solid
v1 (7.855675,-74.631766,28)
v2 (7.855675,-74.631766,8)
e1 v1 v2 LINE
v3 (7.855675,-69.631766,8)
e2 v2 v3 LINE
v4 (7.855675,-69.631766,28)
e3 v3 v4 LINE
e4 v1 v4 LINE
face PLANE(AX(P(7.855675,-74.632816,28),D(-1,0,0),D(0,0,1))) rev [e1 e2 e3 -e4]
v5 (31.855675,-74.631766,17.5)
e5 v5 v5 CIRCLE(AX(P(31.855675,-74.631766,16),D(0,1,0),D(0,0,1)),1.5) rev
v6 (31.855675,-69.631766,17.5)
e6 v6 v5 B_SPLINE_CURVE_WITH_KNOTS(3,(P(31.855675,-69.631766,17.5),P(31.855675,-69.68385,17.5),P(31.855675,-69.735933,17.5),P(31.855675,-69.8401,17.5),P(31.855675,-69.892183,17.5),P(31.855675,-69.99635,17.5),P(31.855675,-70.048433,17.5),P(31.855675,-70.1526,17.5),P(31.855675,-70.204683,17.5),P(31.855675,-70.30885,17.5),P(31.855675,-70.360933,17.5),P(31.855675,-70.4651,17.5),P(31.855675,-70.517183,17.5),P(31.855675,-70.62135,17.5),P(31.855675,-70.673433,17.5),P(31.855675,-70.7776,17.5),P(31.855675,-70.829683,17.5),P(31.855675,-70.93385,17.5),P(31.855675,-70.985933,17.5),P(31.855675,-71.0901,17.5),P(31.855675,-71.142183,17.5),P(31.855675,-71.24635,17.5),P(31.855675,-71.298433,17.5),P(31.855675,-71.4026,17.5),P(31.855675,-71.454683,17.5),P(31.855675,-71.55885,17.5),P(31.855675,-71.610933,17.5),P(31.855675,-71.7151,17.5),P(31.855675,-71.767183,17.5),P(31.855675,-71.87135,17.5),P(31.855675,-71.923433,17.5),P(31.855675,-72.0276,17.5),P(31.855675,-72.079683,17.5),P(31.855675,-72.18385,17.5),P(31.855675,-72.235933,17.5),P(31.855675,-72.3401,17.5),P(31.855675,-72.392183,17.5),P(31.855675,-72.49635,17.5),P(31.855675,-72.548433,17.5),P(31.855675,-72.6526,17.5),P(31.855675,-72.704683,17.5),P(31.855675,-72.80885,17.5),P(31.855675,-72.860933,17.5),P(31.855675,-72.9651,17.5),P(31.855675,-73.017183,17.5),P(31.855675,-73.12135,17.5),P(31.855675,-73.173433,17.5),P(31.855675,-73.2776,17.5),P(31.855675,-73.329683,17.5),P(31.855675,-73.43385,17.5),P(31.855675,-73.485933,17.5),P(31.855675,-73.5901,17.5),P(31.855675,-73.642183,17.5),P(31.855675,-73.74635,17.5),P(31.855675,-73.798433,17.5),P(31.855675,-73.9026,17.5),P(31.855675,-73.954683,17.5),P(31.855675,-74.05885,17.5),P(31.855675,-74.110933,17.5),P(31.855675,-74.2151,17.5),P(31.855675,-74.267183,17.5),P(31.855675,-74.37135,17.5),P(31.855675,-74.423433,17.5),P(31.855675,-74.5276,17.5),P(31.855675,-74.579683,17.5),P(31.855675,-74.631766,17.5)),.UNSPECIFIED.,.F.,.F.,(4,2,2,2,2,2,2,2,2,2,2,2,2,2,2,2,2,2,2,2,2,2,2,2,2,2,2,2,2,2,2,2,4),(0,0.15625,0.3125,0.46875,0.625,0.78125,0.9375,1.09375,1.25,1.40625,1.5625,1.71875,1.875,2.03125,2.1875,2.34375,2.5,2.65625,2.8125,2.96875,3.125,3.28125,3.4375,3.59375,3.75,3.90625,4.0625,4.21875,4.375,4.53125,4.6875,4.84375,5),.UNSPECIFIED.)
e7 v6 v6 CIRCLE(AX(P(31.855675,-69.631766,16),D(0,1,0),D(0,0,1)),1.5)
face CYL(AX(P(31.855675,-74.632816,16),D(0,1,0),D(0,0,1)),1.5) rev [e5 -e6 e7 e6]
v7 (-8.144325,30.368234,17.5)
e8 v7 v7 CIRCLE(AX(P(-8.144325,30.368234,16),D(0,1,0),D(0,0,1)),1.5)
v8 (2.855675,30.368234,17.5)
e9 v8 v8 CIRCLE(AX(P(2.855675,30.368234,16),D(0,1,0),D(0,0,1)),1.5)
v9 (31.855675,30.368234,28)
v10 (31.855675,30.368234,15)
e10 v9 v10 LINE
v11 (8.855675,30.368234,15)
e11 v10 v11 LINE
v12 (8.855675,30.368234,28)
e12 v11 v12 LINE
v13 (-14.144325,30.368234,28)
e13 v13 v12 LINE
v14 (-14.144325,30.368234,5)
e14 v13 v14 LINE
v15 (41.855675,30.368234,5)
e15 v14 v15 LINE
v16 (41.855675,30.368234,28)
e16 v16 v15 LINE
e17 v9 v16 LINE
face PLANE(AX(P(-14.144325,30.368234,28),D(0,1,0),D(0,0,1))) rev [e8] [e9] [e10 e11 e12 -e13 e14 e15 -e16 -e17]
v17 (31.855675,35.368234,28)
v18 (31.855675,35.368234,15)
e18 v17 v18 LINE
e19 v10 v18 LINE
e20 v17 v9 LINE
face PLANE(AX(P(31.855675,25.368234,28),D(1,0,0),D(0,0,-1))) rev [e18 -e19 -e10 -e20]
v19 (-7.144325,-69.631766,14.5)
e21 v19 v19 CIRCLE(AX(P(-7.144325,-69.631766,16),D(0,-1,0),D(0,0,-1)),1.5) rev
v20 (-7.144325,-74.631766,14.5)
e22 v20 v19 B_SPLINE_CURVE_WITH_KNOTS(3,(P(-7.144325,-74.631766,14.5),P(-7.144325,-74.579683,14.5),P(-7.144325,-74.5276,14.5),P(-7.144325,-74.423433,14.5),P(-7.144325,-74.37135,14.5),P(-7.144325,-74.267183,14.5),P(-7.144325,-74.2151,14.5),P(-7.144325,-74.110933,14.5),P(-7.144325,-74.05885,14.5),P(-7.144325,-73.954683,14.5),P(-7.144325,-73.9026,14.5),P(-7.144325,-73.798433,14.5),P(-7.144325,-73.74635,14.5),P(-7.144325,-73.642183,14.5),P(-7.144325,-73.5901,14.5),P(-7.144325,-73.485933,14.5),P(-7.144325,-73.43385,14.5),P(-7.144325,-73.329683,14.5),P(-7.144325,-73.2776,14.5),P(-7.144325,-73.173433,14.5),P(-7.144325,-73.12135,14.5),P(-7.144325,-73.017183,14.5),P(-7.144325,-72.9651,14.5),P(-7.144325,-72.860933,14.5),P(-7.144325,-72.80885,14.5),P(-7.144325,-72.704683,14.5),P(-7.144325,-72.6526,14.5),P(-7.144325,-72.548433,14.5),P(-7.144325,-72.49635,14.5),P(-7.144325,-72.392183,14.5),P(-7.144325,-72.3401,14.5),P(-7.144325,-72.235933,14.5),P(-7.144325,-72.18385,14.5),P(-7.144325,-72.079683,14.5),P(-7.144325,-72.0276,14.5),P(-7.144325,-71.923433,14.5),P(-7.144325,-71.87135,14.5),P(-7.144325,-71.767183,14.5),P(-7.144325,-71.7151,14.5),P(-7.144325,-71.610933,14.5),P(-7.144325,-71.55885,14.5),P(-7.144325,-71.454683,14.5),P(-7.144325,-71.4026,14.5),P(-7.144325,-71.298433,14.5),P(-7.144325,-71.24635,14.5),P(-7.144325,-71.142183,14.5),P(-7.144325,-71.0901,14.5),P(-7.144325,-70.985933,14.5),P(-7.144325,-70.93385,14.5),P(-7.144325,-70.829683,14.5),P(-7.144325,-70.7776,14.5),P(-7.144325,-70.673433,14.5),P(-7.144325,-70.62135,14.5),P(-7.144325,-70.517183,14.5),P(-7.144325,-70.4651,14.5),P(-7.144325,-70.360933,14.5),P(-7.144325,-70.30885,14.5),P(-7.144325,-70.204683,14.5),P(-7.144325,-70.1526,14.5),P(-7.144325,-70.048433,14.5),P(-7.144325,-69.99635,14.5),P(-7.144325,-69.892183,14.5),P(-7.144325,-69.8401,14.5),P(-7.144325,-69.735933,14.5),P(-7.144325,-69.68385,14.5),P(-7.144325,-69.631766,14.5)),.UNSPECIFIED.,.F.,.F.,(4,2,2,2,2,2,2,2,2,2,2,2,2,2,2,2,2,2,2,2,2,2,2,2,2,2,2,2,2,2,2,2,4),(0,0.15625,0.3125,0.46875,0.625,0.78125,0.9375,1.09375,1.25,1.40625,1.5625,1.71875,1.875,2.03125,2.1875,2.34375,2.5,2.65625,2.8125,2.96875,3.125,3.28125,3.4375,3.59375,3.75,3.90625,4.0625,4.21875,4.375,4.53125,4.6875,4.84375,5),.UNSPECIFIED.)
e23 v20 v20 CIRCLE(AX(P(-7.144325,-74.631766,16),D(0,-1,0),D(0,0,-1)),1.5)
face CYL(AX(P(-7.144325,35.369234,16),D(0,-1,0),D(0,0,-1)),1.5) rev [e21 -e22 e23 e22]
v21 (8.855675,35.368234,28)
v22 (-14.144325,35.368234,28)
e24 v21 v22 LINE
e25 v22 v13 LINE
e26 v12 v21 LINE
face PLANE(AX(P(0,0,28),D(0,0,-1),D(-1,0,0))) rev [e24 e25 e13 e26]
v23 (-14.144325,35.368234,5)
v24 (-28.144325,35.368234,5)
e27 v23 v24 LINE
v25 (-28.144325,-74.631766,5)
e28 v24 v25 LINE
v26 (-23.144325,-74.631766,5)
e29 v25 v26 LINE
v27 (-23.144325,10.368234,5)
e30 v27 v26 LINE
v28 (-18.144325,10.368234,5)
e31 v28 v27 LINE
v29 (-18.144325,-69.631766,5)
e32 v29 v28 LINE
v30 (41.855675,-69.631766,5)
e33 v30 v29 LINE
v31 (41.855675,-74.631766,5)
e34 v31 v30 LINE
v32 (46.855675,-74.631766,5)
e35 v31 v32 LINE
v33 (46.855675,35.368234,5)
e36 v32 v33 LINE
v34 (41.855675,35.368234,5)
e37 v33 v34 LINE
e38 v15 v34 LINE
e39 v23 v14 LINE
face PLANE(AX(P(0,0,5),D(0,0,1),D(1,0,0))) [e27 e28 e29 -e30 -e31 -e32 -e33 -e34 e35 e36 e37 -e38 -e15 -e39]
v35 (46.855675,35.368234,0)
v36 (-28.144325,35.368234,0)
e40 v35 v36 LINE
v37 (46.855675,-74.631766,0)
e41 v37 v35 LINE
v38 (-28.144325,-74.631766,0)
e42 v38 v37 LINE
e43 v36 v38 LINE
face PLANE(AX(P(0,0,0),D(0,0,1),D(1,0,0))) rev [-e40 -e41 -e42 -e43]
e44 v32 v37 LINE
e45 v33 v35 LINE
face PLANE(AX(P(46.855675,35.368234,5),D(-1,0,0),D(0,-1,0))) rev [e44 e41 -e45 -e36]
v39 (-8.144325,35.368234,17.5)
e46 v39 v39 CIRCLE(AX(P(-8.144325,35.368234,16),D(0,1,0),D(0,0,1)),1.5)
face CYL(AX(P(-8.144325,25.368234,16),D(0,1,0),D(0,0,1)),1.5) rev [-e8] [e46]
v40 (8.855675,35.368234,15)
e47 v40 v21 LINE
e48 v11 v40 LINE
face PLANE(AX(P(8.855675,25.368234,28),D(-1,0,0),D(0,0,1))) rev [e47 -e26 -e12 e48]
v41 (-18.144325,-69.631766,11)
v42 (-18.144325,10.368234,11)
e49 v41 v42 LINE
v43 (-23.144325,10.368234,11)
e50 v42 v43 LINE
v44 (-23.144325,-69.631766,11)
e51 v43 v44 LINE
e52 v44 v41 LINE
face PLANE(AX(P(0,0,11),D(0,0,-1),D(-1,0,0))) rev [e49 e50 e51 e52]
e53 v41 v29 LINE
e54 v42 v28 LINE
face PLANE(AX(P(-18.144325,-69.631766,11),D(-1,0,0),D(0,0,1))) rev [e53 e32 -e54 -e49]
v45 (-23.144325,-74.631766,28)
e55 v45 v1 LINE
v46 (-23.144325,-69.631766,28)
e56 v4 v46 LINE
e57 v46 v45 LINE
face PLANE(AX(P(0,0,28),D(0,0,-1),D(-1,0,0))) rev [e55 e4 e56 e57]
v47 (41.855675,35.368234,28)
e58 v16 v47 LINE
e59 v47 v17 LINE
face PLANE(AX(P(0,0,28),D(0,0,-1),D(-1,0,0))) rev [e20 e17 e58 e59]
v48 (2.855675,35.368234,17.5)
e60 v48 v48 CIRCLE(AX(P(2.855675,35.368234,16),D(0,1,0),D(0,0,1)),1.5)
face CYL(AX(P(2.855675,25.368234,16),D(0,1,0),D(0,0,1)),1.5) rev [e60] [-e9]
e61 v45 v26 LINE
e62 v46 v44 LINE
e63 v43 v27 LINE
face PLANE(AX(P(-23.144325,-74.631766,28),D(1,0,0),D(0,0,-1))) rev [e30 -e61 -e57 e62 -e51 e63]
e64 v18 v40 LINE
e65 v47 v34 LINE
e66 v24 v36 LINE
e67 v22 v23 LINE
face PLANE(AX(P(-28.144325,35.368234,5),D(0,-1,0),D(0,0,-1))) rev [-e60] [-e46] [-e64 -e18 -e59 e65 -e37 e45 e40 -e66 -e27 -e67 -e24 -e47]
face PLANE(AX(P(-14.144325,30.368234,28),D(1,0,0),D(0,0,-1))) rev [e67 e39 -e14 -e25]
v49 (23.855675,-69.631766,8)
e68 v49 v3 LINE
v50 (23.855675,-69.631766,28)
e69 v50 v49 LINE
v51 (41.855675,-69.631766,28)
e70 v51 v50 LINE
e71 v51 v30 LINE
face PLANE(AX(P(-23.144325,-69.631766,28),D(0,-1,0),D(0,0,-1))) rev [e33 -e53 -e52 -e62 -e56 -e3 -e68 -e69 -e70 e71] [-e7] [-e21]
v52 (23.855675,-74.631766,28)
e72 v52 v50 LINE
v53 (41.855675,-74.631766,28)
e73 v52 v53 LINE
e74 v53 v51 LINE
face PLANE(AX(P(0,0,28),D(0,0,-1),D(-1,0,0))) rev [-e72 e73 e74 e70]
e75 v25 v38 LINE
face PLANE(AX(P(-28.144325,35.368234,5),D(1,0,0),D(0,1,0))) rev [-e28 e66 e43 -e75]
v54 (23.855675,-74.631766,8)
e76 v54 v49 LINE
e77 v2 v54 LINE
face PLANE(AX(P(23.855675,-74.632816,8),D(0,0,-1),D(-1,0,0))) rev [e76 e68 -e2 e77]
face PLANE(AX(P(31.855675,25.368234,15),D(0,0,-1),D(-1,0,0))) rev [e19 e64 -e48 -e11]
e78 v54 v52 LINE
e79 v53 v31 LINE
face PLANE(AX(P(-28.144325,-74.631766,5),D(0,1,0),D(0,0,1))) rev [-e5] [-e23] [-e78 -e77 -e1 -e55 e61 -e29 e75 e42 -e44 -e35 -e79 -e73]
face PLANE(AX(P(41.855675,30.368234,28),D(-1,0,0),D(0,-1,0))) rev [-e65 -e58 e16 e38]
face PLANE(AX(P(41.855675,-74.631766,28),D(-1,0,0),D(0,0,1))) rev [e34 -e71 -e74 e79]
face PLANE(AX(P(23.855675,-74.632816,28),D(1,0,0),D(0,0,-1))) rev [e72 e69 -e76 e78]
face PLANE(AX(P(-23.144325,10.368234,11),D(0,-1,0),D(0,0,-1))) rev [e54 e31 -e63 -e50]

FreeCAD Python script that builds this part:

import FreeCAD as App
import Part
import Sketcher
from FreeCAD import Vector

doc = App.newDocument("Part")
body = doc.addObject("PartDesign::Body", "Body")

# Sketch on XY plane
sketch1 = body.newObject("Sketcher::SketchObject", "Sketch")
sketch1.AttachmentSupport = (doc.getObject("XY_Plane"), [""])
sketch1.MapMode = "FlatFace"
sketch1.addGeometry(Part.LineSegment(Vector(-28, 35, 0), Vector(-28, -75, 0)), False)
sketch1.addGeometry(Part.LineSegment(Vector(-28, -75, 0), Vector(47, -75, 0)), False)
sketch1.addGeometry(Part.LineSegment(Vector(47, -75, 0), Vector(47, 35, 0)), False)
sketch1.addGeometry(Part.LineSegment(Vector(47, 35, 0), Vector(-28, 35, 0)), False)
sketch1.addConstraint(Sketcher.Constraint("Coincident", 0, 2, 1, 1))
sketch1.addConstraint(Sketcher.Constraint("Coincident", 1, 2, 2, 1))
sketch1.addConstraint(Sketcher.Constraint("Coincident", 2, 2, 3, 1))
sketch1.addConstraint(Sketcher.Constraint("Coincident", 3, 2, 0, 1))
sketch1.addConstraint(Sketcher.Constraint("Vertical", 0))
sketch1.addConstraint(Sketcher.Constraint("Horizontal", 1))
sketch1.addConstraint(Sketcher.Constraint("Vertical", 2))
sketch1.addConstraint(Sketcher.Constraint("Horizontal", 3))
sketch1.addConstraint(Sketcher.Constraint("DistanceX", 1, 1, 1, 2, 75.0))
sketch1.addConstraint(Sketcher.Constraint("DistanceY", 0, 2, 0, 1, 110.0))
sketch1.addConstraint(Sketcher.Constraint("DistanceX", 0, 2, -1, 1, 28.144325))
sketch1.addConstraint(Sketcher.Constraint("DistanceY", 0, 2, -1, 1, 74.631766))
pad1 = body.newObject("PartDesign::Pad", "Pad")
pad1.Profile = sketch1
pad1.Length = 5

# Sketch on XY plane
sketch2 = body.newObject("Sketcher::SketchObject", "Sketch001")
sketch2.AttachmentSupport = (doc.getObject("XY_Plane"), [""])
sketch2.MapMode = "FlatFace"
sketch2.AttachmentOffset = App.Placement(Vector(0, 0, 5), App.Rotation())
sketch2.addGeometry(Part.LineSegment(Vector(-23.1, -69.6, 0), Vector(-23.1, -74.6, 0)), False)
sketch2.addGeometry(Part.LineSegment(Vector(-23.1, -74.6, 0), Vector(41.9, -74.6, 0)), False)
sketch2.addGeometry(Part.LineSegment(Vector(41.9, -74.6, 0), Vector(41.9, -69.6, 0)), False)
sketch2.addGeometry(Part.LineSegment(Vector(41.9, -69.6, 0), Vector(-23.1, -69.6, 0)), False)
sketch2.addGeometry(Part.LineSegment(Vector(-14.1, 35.4, 0), Vector(-14.1, 30.4, 0)), False)
sketch2.addGeometry(Part.LineSegment(Vector(-14.1, 30.4, 0), Vector(41.9, 30.4, 0)), False)
sketch2.addGeometry(Part.LineSegment(Vector(41.9, 30.4, 0), Vector(41.9, 35.4, 0)), False)
sketch2.addGeometry(Part.LineSegment(Vector(41.9, 35.4, 0), Vector(-14.1, 35.4, 0)), False)
sketch2.addConstraint(Sketcher.Constraint("Coincident", 0, 2, 1, 1))
sketch2.addConstraint(Sketcher.Constraint("Coincident", 1, 2, 2, 1))
sketch2.addConstraint(Sketcher.Constraint("Coincident", 2, 2, 3, 1))
sketch2.addConstraint(Sketcher.Constraint("Coincident", 3, 2, 0, 1))
sketch2.addConstraint(Sketcher.Constraint("Coincident", 4, 2, 5, 1))
sketch2.addConstraint(Sketcher.Constraint("Coincident", 5, 2, 6, 1))
sketch2.addConstraint(Sketcher.Constraint("Coincident", 6, 2, 7, 1))
sketch2.addConstraint(Sketcher.Constraint("Coincident", 7, 2, 4, 1))
sketch2.addConstraint(Sketcher.Constraint("Vertical", 0))
sketch2.addConstraint(Sketcher.Constraint("Horizontal", 1))
sketch2.addConstraint(Sketcher.Constraint("Vertical", 2))
sketch2.addConstraint(Sketcher.Constraint("Horizontal", 3))
sketch2.addConstraint(Sketcher.Constraint("Vertical", 4))
sketch2.addConstraint(Sketcher.Constraint("Horizontal", 5))
sketch2.addConstraint(Sketcher.Constraint("Vertical", 6))
sketch2.addConstraint(Sketcher.Constraint("Horizontal", 7))
sketch2.addConstraint(Sketcher.Constraint("Vertical", 2, 2, 5, 2))
sketch2.addConstraint(Sketcher.Constraint("Equal", 2, 4))
sketch2.addConstraint(Sketcher.Constraint("DistanceX", 1, 1, 1, 2, 65.0))
sketch2.addConstraint(Sketcher.Constraint("DistanceX", 5, 1, 5, 2, 56.0))
sketch2.addConstraint(Sketcher.Constraint("DistanceY", 0, 2, 0, 1, 5.0))
sketch2.addConstraint(Sketcher.Constraint("DistanceY", 3, 2, 4, 2, 100.0))
sketch2.addConstraint(Sketcher.Constraint("DistanceX", 0, 2, -1, 1, 23.144325))
sketch2.addConstraint(Sketcher.Constraint("DistanceY", 0, 2, -1, 1, 74.631766))
pad2 = body.newObject("PartDesign::Pad", "Pad001")
pad2.Profile = sketch2
pad2.Length = 23

# Sketch on XZ plane
sketch3 = body.newObject("Sketcher::SketchObject", "Sketch002")
sketch3.AttachmentSupport = (doc.getObject("XZ_Plane"), [""])
sketch3.MapMode = "FlatFace"
sketch3.AttachmentOffset = App.Placement(Vector(0, 0, -35.368234), App.Rotation())
sketch3.addGeometry(Part.Circle(Vector(2.9, 16, 0), Vector(0, 0, 1), 1.5), False)
sketch3.addGeometry(Part.Circle(Vector(-8.1, 16, 0), Vector(0, 0, 1), 1.5), False)
sketch3.addGeometry(Part.LineSegment(Vector(8.9, 15, 0), Vector(8.9, 28, 0)), False)
sketch3.addGeometry(Part.LineSegment(Vector(8.9, 28, 0), Vector(31.9, 28, 0)), False)
sketch3.addGeometry(Part.LineSegment(Vector(31.9, 28, 0), Vector(31.9, 15, 0)), False)
sketch3.addGeometry(Part.LineSegment(Vector(31.9, 15, 0), Vector(8.9, 15, 0)), False)
sketch3.addConstraint(Sketcher.Constraint("Coincident", 2, 2, 3, 1))
sketch3.addConstraint(Sketcher.Constraint("Coincident", 3, 2, 4, 1))
sketch3.addConstraint(Sketcher.Constraint("Coincident", 4, 2, 5, 1))
sketch3.addConstraint(Sketcher.Constraint("Coincident", 5, 2, 2, 1))
sketch3.addConstraint(Sketcher.Constraint("Vertical", 2))
sketch3.addConstraint(Sketcher.Constraint("Horizontal", 3))
sketch3.addConstraint(Sketcher.Constraint("Vertical", 4))
sketch3.addConstraint(Sketcher.Constraint("Horizontal", 5))
sketch3.addConstraint(Sketcher.Constraint("Equal", 0, 1))
sketch3.addConstraint(Sketcher.Constraint("Horizontal", 0, 3, 1, 3))
sketch3.addConstraint(Sketcher.Constraint("Diameter", 0, 3.0))
sketch3.addConstraint(Sketcher.Constraint("DistanceX", 3, 1, 3, 2, 23.0))
sketch3.addConstraint(Sketcher.Constraint("DistanceY", 2, 1, 2, 2, 13.0))
sketch3.addConstraint(Sketcher.Constraint("DistanceY", -1, 1, 0, 3, 16.0))
sketch3.addConstraint(Sketcher.Constraint("DistanceY", -1, 1, 2, 2, 28.0))
sketch3.addConstraint(Sketcher.Constraint("DistanceX", 1, 3, 0, 3, 11.0))
sketch3.addConstraint(Sketcher.Constraint("DistanceX", 0, 3, 2, 2, 6.0))
sketch3.addConstraint(Sketcher.Constraint("DistanceX", -1, 1, 0, 3, 2.855675))
pocket1 = body.newObject("PartDesign::Pocket", "Pocket")
pocket1.Profile = sketch3
pocket1.Length = 10
pocket1.Reversed = True

# Sketch on XZ plane
sketch4 = body.newObject("Sketcher::SketchObject", "Sketch003")
sketch4.AttachmentSupport = (doc.getObject("XZ_Plane"), [""])
sketch4.MapMode = "FlatFace"
sketch4.AttachmentOffset = App.Placement(Vector(0, 0, 69.631766), App.Rotation())
sketch4.addGeometry(Part.LineSegment(Vector(8, 8, 0), Vector(8, 28, 0)), False)
sketch4.addGeometry(Part.LineSegment(Vector(8, 28, 0), Vector(24, 28, 0)), False)
sketch4.addGeometry(Part.LineSegment(Vector(24, 28, 0), Vector(24, 8, 0)), False)
sketch4.addGeometry(Part.LineSegment(Vector(24, 8, 0), Vector(8, 8, 0)), False)
sketch4.addConstraint(Sketcher.Constraint("Coincident", 0, 2, 1, 1))
sketch4.addConstraint(Sketcher.Constraint("Coincident", 1, 2, 2, 1))
sketch4.addConstraint(Sketcher.Constraint("Coincident", 2, 2, 3, 1))
sketch4.addConstraint(Sketcher.Constraint("Coincident", 3, 2, 0, 1))
sketch4.addConstraint(Sketcher.Constraint("Vertical", 0))
sketch4.addConstraint(Sketcher.Constraint("Horizontal", 1))
sketch4.addConstraint(Sketcher.Constraint("Vertical", 2))
sketch4.addConstraint(Sketcher.Constraint("Horizontal", 3))
sketch4.addConstraint(Sketcher.Constraint("DistanceX", 1, 1, 1, 2, 16.0))
sketch4.addConstraint(Sketcher.Constraint("DistanceY", 0, 1, 0, 2, 20.0))
sketch4.addConstraint(Sketcher.Constraint("DistanceY", -1, 1, 0, 2, 28.0))
sketch4.addConstraint(Sketcher.Constraint("DistanceX", -1, 1, 0, 2, 7.855675))
pocket2 = body.newObject("PartDesign::Pocket", "Pocket001")
pocket2.Profile = sketch4
pocket2.Type = "UpToFirst"
pocket2.Reversed = True

# Sketch on XZ plane
sketch5 = body.newObject("Sketcher::SketchObject", "Sketch004")
sketch5.AttachmentSupport = (doc.getObject("XZ_Plane"), [""])
sketch5.MapMode = "FlatFace"
sketch5.AttachmentOffset = App.Placement(Vector(0, 0, 69.631766), App.Rotation())
sketch5.addGeometry(Part.Circle(Vector(31.9, 16, 0), Vector(0, 0, 1), 1.5), False)
sketch5.addConstraint(Sketcher.Constraint("Diameter", 0, 3.0))
sketch5.addConstraint(Sketcher.Constraint("DistanceY", -1, 1, 0, 3, 16.0))
sketch5.addConstraint(Sketcher.Constraint("DistanceX", -1, 1, 0, 3, 31.855675))
pocket3 = body.newObject("PartDesign::Pocket", "Pocket002")
pocket3.Profile = sketch5
pocket3.Type = "UpToFirst"
pocket3.Reversed = True

# Sketch on XZ plane
sketch6 = body.newObject("Sketcher::SketchObject", "Sketch005")
sketch6.AttachmentSupport = (doc.getObject("XZ_Plane"), [""])
sketch6.MapMode = "FlatFace"
sketch6.AttachmentOffset = App.Placement(Vector(0, 0, 74.631766), App.Rotation())
sketch6.addGeometry(Part.Circle(Vector(-7.1, 16, 0), Vector(0, 0, 1), 1.5), False)
sketch6.addConstraint(Sketcher.Constraint("Diameter", 0, 3.0))
sketch6.addConstraint(Sketcher.Constraint("DistanceY", -1, 1, 0, 3, 16.0))
sketch6.addConstraint(Sketcher.Constraint("DistanceX", 0, 3, -1, 1, 7.144325))
pocket4 = body.newObject("PartDesign::Pocket", "Pocket003")
pocket4.Profile = sketch6
pocket4.Type = "UpToFirst"

# Sketch on XY plane
sketch7 = body.newObject("Sketcher::SketchObject", "Sketch006")
sketch7.AttachmentSupport = (doc.getObject("XY_Plane"), [""])
sketch7.MapMode = "FlatFace"
sketch7.AttachmentOffset = App.Placement(Vector(0, 0, 5), App.Rotation())
sketch7.addGeometry(Part.LineSegment(Vector(-23, 10, 0), Vector(-23, -70, 0)), False)
sketch7.addGeometry(Part.LineSegment(Vector(-23, -70, 0), Vector(-18, -70, 0)), False)
sketch7.addGeometry(Part.LineSegment(Vector(-18, -70, 0), Vector(-18, 10, 0)), False)
sketch7.addGeometry(Part.LineSegment(Vector(-18, 10, 0), Vector(-23, 10, 0)), False)
sketch7.addConstraint(Sketcher.Constraint("Coincident", 0, 2, 1, 1))
sketch7.addConstraint(Sketcher.Constraint("Coincident", 1, 2, 2, 1))
sketch7.addConstraint(Sketcher.Constraint("Coincident", 2, 2, 3, 1))
sketch7.addConstraint(Sketcher.Constraint("Coincident", 3, 2, 0, 1))
sketch7.addConstraint(Sketcher.Constraint("Vertical", 0))
sketch7.addConstraint(Sketcher.Constraint("Horizontal", 1))
sketch7.addConstraint(Sketcher.Constraint("Vertical", 2))
sketch7.addConstraint(Sketcher.Constraint("Horizontal", 3))
sketch7.addConstraint(Sketcher.Constraint("DistanceX", 1, 1, 1, 2, 5.0))
sketch7.addConstraint(Sketcher.Constraint("DistanceY", 0, 2, 0, 1, 80.0))
sketch7.addConstraint(Sketcher.Constraint("DistanceX", 0, 2, -1, 1, 23.144325))
sketch7.addConstraint(Sketcher.Constraint("DistanceY", 0, 2, -1, 1, 69.631766))
pad3 = body.newObject("PartDesign::Pad", "Pad002")
pad3.Profile = sketch7
pad3.Length = 6

doc.recompute()
